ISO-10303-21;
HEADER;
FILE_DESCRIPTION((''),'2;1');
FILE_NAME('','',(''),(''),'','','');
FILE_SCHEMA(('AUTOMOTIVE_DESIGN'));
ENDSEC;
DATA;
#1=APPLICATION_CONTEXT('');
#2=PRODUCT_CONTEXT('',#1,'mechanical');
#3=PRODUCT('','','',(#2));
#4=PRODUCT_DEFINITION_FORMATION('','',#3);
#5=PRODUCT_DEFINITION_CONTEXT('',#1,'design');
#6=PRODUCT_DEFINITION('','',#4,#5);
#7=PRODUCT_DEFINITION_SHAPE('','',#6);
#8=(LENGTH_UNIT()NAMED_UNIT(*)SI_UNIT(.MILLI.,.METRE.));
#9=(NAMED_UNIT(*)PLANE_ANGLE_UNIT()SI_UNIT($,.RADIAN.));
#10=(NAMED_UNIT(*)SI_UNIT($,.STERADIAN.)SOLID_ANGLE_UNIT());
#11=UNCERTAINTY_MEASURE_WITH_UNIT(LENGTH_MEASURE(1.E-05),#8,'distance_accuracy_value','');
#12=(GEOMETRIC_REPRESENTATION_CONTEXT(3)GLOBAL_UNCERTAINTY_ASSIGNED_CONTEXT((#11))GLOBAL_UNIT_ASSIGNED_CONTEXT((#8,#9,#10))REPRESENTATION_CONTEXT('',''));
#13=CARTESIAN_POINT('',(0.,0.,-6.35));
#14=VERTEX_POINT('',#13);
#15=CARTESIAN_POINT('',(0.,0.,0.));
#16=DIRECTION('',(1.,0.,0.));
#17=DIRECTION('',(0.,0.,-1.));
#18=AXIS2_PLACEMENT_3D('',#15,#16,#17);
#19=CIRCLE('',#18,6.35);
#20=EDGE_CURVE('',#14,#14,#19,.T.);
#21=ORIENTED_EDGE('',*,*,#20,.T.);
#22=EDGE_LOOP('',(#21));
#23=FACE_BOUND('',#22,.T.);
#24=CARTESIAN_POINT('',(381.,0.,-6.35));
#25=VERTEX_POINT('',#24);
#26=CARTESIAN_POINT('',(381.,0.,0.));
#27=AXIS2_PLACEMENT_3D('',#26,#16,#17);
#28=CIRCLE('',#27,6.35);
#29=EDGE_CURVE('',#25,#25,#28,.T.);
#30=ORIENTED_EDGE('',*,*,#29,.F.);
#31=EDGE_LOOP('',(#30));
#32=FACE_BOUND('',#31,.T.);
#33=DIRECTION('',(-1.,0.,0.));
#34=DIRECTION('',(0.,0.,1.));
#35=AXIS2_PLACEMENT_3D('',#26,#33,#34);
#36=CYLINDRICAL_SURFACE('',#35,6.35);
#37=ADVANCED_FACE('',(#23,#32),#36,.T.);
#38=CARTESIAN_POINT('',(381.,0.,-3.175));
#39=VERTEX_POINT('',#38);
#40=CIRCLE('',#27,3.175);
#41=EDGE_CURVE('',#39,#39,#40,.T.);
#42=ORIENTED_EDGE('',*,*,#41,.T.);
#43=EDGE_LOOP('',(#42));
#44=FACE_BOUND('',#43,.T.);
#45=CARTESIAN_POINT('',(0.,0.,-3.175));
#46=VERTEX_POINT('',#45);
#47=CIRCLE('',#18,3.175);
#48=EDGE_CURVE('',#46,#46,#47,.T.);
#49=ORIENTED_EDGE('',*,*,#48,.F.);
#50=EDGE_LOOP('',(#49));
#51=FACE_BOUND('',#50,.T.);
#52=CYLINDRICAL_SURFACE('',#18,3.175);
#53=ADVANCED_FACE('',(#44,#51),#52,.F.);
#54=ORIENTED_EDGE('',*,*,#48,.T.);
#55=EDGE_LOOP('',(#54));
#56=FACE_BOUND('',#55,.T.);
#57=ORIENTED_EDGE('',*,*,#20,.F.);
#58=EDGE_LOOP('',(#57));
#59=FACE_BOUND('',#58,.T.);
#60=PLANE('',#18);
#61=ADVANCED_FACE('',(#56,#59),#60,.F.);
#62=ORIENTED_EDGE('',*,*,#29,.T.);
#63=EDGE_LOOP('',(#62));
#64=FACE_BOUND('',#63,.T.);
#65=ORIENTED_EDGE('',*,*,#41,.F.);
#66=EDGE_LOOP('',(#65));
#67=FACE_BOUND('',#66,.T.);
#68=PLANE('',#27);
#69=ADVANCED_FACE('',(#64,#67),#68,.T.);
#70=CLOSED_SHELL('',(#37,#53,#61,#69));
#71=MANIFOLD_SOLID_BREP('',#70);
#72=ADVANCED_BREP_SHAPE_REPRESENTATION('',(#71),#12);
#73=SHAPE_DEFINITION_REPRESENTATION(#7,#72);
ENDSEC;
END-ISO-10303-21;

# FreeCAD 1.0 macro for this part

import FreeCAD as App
import Part
import Sketcher
from FreeCAD import Vector
Q = App.Units.Quantity

doc = App.newDocument("Part")
params = doc.addObject("Spreadsheet::Sheet", "Params")
for row, (alias, value) in enumerate([
    ("sketch1_diameter", "0.5 in"),
    ("pad1_length", "15 in"),
    ("sketch2_diameter", "0.25 in"),
], start=1):
    params.set(f"A{row}", alias)
    params.set(f"B{row}", "=" + value)
    params.setAlias(f"B{row}", alias)

body = doc.addObject("PartDesign::Body", "Body")

# Sketch on YZ plane
sketch1 = body.newObject("Sketcher::SketchObject", "Sketch")
sketch1.AttachmentSupport = (doc.getObject("YZ_Plane"), [""])
sketch1.MapMode = "FlatFace"
sketch1.addGeometry(Part.Circle(Vector(0, 0, 0), Vector(0, 0, 1), 6.35), False)
sketch1.addConstraint([
    Sketcher.Constraint("Coincident", 0, 3, -1, 1),
    Sketcher.Constraint("Diameter", 0, Q("0.5 in")),
])
sketch1.setExpression("Constraints[1]", "Params.sketch1_diameter")
pad1 = body.newObject("PartDesign::Pad", "Pad")
pad1.Profile = sketch1
pad1.setExpression("Length", "Params.pad1_length")

# Sketch on YZ plane
sketch2 = body.newObject("Sketcher::SketchObject", "Sketch001")
sketch2.AttachmentSupport = (doc.getObject("YZ_Plane"), [""])
sketch2.MapMode = "FlatFace"
sketch2.AttachmentOffset = App.Placement(Vector(0, 0, 15 * 25.4), App.Rotation())
sketch2.addGeometry(Part.Circle(Vector(0, 0, 0), Vector(0, 0, 1), 3.175), False)
sketch2.addConstraint([
    Sketcher.Constraint("Coincident", 0, 3, -1, 1),
    Sketcher.Constraint("Diameter", 0, Q("0.25 in")),
])
sketch2.setExpression("Constraints[1]", "Params.sketch2_diameter")
pocket1 = body.newObject("PartDesign::Pocket", "Pocket")
pocket1.Profile = sketch2
pocket1.Type = "ThroughAll"

doc.recompute()
